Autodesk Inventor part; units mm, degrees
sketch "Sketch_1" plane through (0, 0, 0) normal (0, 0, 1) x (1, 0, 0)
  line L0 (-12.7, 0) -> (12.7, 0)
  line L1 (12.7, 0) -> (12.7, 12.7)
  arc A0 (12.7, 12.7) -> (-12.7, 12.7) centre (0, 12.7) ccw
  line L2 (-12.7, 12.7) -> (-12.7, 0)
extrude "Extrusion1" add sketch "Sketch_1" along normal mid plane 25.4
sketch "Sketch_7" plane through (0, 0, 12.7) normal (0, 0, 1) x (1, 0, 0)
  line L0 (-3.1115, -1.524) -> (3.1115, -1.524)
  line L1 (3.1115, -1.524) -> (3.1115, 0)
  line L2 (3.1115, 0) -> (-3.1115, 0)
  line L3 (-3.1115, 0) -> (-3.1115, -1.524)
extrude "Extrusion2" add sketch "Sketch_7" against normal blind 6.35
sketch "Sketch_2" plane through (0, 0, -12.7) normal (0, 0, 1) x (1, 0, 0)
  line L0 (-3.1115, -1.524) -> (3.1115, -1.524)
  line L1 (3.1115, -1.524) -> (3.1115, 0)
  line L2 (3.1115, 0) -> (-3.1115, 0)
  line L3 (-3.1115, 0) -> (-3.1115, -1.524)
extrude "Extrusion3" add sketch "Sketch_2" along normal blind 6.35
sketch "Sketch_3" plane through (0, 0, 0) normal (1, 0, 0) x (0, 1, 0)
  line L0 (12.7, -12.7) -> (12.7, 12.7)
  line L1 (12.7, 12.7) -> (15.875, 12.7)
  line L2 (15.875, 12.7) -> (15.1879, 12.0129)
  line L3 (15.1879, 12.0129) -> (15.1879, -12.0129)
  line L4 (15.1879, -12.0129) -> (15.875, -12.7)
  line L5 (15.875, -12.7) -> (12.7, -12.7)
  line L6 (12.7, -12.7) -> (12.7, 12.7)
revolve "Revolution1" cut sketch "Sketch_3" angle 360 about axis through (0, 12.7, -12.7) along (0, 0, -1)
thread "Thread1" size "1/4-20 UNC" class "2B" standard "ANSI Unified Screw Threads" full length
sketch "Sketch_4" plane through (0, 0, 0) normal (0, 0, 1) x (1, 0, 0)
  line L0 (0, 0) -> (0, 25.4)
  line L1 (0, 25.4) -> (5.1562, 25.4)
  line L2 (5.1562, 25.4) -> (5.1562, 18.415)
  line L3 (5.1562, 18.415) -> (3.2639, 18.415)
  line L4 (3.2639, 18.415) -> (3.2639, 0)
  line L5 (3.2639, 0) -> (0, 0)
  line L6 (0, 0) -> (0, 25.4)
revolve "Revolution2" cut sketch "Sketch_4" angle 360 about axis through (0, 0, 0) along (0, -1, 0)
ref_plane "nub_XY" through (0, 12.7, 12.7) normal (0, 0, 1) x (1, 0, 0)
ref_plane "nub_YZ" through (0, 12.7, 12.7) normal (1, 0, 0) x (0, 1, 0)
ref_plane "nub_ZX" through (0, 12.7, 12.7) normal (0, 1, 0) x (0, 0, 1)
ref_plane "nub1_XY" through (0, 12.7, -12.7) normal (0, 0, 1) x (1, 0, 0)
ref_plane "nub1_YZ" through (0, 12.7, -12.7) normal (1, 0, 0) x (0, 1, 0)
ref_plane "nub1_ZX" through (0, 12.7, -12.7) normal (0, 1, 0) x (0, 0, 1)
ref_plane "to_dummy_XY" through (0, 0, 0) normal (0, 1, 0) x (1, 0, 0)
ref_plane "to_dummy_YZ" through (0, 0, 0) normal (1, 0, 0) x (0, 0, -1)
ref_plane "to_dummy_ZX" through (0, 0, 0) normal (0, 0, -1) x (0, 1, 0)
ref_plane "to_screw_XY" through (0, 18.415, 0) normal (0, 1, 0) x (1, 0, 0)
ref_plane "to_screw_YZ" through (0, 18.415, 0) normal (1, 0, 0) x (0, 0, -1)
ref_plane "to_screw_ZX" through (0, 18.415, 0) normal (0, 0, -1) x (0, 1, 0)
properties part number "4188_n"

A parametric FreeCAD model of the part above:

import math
import FreeCAD as App
import Part
import Sketcher
Q = App.Units.Quantity

doc = App.newDocument("Part")
body = doc.addObject("PartDesign::Body", "Body")

# Sketch on XY plane
sketch1 = body.newObject("Sketcher::SketchObject", "Sketch")
sketch1.AttachmentSupport = (doc.getObject("XY_Plane"), [""])
sketch1.MapMode = "FlatFace"
sketch1.addGeometry([
    Part.LineSegment(App.Vector(-13, 13, 0), App.Vector(-13, 0, 0)),
    Part.LineSegment(App.Vector(-13, 0, 0), App.Vector(13, 0, 0)),
    Part.LineSegment(App.Vector(13, 0, 0), App.Vector(13, 13, 0)),
    Part.ArcOfCircle(Part.Circle(App.Vector(0, 13, 0), App.Vector(0, 0, 1), 13), math.radians(0), math.radians(180)),
], False)
sketch1.addConstraint([
    Sketcher.Constraint("Coincident", 0, 2, 1, 1),
    Sketcher.Constraint("Coincident", 1, 2, 2, 1),
    Sketcher.Constraint("Tangent", 2, 2, 3, 1),
    Sketcher.Constraint("Tangent", 3, 2, 0, 1),
    Sketcher.Constraint("Vertical", 0),
    Sketcher.Constraint("Horizontal", 1),
    Sketcher.Constraint("Vertical", 2),
    Sketcher.Constraint("Symmetric", 0, 2, 1, 2, -1, 1),
    Sketcher.Constraint("Radius", 3, Q("0.5 in")),
    Sketcher.Constraint("DistanceY", 0, 2, 0, 1, Q("0.5 in")),
])
pad1 = body.newObject("PartDesign::Pad", "Pad")
pad1.Profile = sketch1
pad1.Length = Q("1 in")
pad1.Midplane = True

# Sketch on XY plane
sketch2 = body.newObject("Sketcher::SketchObject", "Sketch001")
sketch2.AttachmentSupport = (doc.getObject("XY_Plane"), [""])
sketch2.MapMode = "FlatFace"
sketch2.AttachmentOffset = App.Placement(App.Vector(0, 0, 0.5 * 25.4), App.Rotation())
sketch2.addGeometry([
    Part.LineSegment(App.Vector(-3.1, 0, 0), App.Vector(-3.1, -1.5, 0)),
    Part.LineSegment(App.Vector(-3.1, -1.5, 0), App.Vector(3.1, -1.5, 0)),
    Part.LineSegment(App.Vector(3.1, -1.5, 0), App.Vector(3.1, 0, 0)),
    Part.LineSegment(App.Vector(3.1, 0, 0), App.Vector(-3.1, 0, 0)),
], False)
sketch2.addConstraint([
    Sketcher.Constraint("Coincident", 0, 2, 1, 1),
    Sketcher.Constraint("Coincident", 1, 2, 2, 1),
    Sketcher.Constraint("Coincident", 2, 2, 3, 1),
    Sketcher.Constraint("Coincident", 3, 2, 0, 1),
    Sketcher.Constraint("Vertical", 0),
    Sketcher.Constraint("Horizontal", 1),
    Sketcher.Constraint("Vertical", 2),
    Sketcher.Constraint("Horizontal", 3),
    Sketcher.Constraint("Symmetric", 2, 2, 3, 2, -1, 1),
    Sketcher.Constraint("DistanceY", 0, 2, 0, 1, Q("0.06 in")),
    Sketcher.Constraint("DistanceX", 1, 1, 1, 2, Q("0.245 in")),
])
pad2 = body.newObject("PartDesign::Pad", "Pad001")
pad2.Profile = sketch2
pad2.Length = Q("0.25 in")
pad2.Reversed = True

# Sketch on XY plane
sketch3 = body.newObject("Sketcher::SketchObject", "Sketch002")
sketch3.AttachmentSupport = (doc.getObject("XY_Plane"), [""])
sketch3.MapMode = "FlatFace"
sketch3.AttachmentOffset = App.Placement(App.Vector(0, 0, -0.5 * 25.4), App.Rotation())
sketch3.addGeometry([
    Part.LineSegment(App.Vector(-3.1, 0, 0), App.Vector(-3.1, -1.5, 0)),
    Part.LineSegment(App.Vector(-3.1, -1.5, 0), App.Vector(3.1, -1.5, 0)),
    Part.LineSegment(App.Vector(3.1, -1.5, 0), App.Vector(3.1, 0, 0)),
    Part.LineSegment(App.Vector(3.1, 0, 0), App.Vector(-3.1, 0, 0)),
], False)
sketch3.addConstraint([
    Sketcher.Constraint("Coincident", 0, 2, 1, 1),
    Sketcher.Constraint("Coincident", 1, 2, 2, 1),
    Sketcher.Constraint("Coincident", 2, 2, 3, 1),
    Sketcher.Constraint("Coincident", 3, 2, 0, 1),
    Sketcher.Constraint("Vertical", 0),
    Sketcher.Constraint("Horizontal", 1),
    Sketcher.Constraint("Vertical", 2),
    Sketcher.Constraint("Horizontal", 3),
    Sketcher.Constraint("Symmetric", 2, 2, 3, 2, -1, 1),
    Sketcher.Constraint("DistanceY", 0, 2, 0, 1, Q("0.06 in")),
    Sketcher.Constraint("DistanceX", 1, 1, 1, 2, Q("0.245 in")),
])
pad3 = body.newObject("PartDesign::Pad", "Pad002")
pad3.Profile = sketch3
pad3.Length = Q("0.25 in")

# Sketch on YZ plane
sketch4 = body.newObject("Sketcher::SketchObject", "Sketch003")
sketch4.AttachmentSupport = (doc.getObject("YZ_Plane"), [""])
sketch4.MapMode = "FlatFace"
sketch4.addGeometry([
    Part.LineSegment(App.Vector(12.7, 12.7, 0), App.Vector(12.7, -12.7, 0)),  # 0
    Part.LineSegment(App.Vector(12.7, -12.7, 0), App.Vector(15.9, -12.7, 0)),  # 1
    Part.LineSegment(App.Vector(15.9, -12.7, 0), App.Vector(15.2, -12, 0)),  # 2
    Part.LineSegment(App.Vector(15.2, -12, 0), App.Vector(15.2, 12, 0)),  # 3
    Part.LineSegment(App.Vector(15.2, 12, 0), App.Vector(15.9, 12.7, 0)),  # 4
    Part.LineSegment(App.Vector(15.9, 12.7, 0), App.Vector(12.7, 12.7, 0)),  # 5
], False)
sketch4.addGeometry(Part.LineSegment(App.Vector(12.7, 12.7, 0), App.Vector(12.7, -12.7, 0)), True)  # axis
sketch4.addConstraint([
    Sketcher.Constraint("Coincident", 0, 2, 1, 1),
    Sketcher.Constraint("Coincident", 1, 2, 2, 1),
    Sketcher.Constraint("Coincident", 2, 2, 3, 1),
    Sketcher.Constraint("Coincident", 3, 2, 4, 1),
    Sketcher.Constraint("Coincident", 4, 2, 5, 1),
    Sketcher.Constraint("Coincident", 5, 2, 0, 1),
    Sketcher.Constraint("Vertical", 0),
    Sketcher.Constraint("Horizontal", 1),
    Sketcher.Constraint("Vertical", 3),
    Sketcher.Constraint("Horizontal", 5),
    Sketcher.Constraint("Vertical", 6),
    Sketcher.Constraint("Coincident", 6, 1, 5, 2),
    Sketcher.Constraint("Symmetric", 1, 2, 4, 2, -1),
    Sketcher.Constraint("Perpendicular", 2, 4),
    Sketcher.Constraint("Horizontal", 1, 2, 6, 2),
    Sketcher.Constraint("Equal", 2, 4),
    Sketcher.Constraint("DistanceY", 0, 2, 0, 1, Q("1 in")),
    Sketcher.Constraint("DistanceX", -1, 1, 0, 2, Q("0.5 in")),
    Sketcher.Constraint("DistanceX", 1, 1, 1, 2, Q("0.125 in")),
    Sketcher.Constraint("DistanceY", 3, 1, 3, 2, Q("0.9459 in")),
])
groove = body.newObject("PartDesign::Groove", "Groove")
groove.Profile = sketch4
groove.ReferenceAxis = (sketch4, ["Axis0"])
groove.Angle = 360

# Sketch on XY plane
sketch5 = body.newObject("Sketcher::SketchObject", "Sketch004")
sketch5.AttachmentSupport = (doc.getObject("XY_Plane"), [""])
sketch5.MapMode = "FlatFace"
sketch5.addGeometry([
    Part.LineSegment(App.Vector(0, 25.4, 0), App.Vector(0, 0, 0)),  # 0
    Part.LineSegment(App.Vector(0, 0, 0), App.Vector(3.3, 0, 0)),  # 1
    Part.LineSegment(App.Vector(3.3, 0, 0), App.Vector(3.3, 18.4, 0)),  # 2
    Part.LineSegment(App.Vector(3.3, 18.4, 0), App.Vector(5.2, 18.4, 0)),  # 3
    Part.LineSegment(App.Vector(5.2, 18.4, 0), App.Vector(5.2, 25.4, 0)),  # 4
    Part.LineSegment(App.Vector(5.2, 25.4, 0), App.Vector(0, 25.4, 0)),  # 5
], False)
sketch5.addConstraint([
    Sketcher.Constraint("Coincident", 0, 2, 1, 1),
    Sketcher.Constraint("Coincident", 1, 2, 2, 1),
    Sketcher.Constraint("Coincident", 2, 2, 3, 1),
    Sketcher.Constraint("Coincident", 3, 2, 4, 1),
    Sketcher.Constraint("Coincident", 4, 2, 5, 1),
    Sketcher.Constraint("Coincident", 5, 2, 0, 1),
    Sketcher.Constraint("Vertical", 0),
    Sketcher.Constraint("Horizontal", 1),
    Sketcher.Constraint("Vertical", 2),
    Sketcher.Constraint("Horizontal", 3),
    Sketcher.Constraint("Vertical", 4),
    Sketcher.Constraint("Horizontal", 5),
    Sketcher.Constraint("Coincident", 0, 2, -1, 1),
    Sketcher.Constraint("DistanceY", 0, 2, 0, 1, Q("1 in")),
    Sketcher.Constraint("DistanceX", 5, 2, 5, 1, Q("0.203 in")),
    Sketcher.Constraint("DistanceY", 2, 1, 2, 2, Q("0.725 in")),
    Sketcher.Constraint("DistanceX", 1, 1, 1, 2, Q("0.1285 in")),
])
groove2 = body.newObject("PartDesign::Groove", "Groove001")
groove2.Profile = sketch5
groove2.ReferenceAxis = (sketch5, ["V_Axis"])
groove2.Angle = 360

doc.recompute()
